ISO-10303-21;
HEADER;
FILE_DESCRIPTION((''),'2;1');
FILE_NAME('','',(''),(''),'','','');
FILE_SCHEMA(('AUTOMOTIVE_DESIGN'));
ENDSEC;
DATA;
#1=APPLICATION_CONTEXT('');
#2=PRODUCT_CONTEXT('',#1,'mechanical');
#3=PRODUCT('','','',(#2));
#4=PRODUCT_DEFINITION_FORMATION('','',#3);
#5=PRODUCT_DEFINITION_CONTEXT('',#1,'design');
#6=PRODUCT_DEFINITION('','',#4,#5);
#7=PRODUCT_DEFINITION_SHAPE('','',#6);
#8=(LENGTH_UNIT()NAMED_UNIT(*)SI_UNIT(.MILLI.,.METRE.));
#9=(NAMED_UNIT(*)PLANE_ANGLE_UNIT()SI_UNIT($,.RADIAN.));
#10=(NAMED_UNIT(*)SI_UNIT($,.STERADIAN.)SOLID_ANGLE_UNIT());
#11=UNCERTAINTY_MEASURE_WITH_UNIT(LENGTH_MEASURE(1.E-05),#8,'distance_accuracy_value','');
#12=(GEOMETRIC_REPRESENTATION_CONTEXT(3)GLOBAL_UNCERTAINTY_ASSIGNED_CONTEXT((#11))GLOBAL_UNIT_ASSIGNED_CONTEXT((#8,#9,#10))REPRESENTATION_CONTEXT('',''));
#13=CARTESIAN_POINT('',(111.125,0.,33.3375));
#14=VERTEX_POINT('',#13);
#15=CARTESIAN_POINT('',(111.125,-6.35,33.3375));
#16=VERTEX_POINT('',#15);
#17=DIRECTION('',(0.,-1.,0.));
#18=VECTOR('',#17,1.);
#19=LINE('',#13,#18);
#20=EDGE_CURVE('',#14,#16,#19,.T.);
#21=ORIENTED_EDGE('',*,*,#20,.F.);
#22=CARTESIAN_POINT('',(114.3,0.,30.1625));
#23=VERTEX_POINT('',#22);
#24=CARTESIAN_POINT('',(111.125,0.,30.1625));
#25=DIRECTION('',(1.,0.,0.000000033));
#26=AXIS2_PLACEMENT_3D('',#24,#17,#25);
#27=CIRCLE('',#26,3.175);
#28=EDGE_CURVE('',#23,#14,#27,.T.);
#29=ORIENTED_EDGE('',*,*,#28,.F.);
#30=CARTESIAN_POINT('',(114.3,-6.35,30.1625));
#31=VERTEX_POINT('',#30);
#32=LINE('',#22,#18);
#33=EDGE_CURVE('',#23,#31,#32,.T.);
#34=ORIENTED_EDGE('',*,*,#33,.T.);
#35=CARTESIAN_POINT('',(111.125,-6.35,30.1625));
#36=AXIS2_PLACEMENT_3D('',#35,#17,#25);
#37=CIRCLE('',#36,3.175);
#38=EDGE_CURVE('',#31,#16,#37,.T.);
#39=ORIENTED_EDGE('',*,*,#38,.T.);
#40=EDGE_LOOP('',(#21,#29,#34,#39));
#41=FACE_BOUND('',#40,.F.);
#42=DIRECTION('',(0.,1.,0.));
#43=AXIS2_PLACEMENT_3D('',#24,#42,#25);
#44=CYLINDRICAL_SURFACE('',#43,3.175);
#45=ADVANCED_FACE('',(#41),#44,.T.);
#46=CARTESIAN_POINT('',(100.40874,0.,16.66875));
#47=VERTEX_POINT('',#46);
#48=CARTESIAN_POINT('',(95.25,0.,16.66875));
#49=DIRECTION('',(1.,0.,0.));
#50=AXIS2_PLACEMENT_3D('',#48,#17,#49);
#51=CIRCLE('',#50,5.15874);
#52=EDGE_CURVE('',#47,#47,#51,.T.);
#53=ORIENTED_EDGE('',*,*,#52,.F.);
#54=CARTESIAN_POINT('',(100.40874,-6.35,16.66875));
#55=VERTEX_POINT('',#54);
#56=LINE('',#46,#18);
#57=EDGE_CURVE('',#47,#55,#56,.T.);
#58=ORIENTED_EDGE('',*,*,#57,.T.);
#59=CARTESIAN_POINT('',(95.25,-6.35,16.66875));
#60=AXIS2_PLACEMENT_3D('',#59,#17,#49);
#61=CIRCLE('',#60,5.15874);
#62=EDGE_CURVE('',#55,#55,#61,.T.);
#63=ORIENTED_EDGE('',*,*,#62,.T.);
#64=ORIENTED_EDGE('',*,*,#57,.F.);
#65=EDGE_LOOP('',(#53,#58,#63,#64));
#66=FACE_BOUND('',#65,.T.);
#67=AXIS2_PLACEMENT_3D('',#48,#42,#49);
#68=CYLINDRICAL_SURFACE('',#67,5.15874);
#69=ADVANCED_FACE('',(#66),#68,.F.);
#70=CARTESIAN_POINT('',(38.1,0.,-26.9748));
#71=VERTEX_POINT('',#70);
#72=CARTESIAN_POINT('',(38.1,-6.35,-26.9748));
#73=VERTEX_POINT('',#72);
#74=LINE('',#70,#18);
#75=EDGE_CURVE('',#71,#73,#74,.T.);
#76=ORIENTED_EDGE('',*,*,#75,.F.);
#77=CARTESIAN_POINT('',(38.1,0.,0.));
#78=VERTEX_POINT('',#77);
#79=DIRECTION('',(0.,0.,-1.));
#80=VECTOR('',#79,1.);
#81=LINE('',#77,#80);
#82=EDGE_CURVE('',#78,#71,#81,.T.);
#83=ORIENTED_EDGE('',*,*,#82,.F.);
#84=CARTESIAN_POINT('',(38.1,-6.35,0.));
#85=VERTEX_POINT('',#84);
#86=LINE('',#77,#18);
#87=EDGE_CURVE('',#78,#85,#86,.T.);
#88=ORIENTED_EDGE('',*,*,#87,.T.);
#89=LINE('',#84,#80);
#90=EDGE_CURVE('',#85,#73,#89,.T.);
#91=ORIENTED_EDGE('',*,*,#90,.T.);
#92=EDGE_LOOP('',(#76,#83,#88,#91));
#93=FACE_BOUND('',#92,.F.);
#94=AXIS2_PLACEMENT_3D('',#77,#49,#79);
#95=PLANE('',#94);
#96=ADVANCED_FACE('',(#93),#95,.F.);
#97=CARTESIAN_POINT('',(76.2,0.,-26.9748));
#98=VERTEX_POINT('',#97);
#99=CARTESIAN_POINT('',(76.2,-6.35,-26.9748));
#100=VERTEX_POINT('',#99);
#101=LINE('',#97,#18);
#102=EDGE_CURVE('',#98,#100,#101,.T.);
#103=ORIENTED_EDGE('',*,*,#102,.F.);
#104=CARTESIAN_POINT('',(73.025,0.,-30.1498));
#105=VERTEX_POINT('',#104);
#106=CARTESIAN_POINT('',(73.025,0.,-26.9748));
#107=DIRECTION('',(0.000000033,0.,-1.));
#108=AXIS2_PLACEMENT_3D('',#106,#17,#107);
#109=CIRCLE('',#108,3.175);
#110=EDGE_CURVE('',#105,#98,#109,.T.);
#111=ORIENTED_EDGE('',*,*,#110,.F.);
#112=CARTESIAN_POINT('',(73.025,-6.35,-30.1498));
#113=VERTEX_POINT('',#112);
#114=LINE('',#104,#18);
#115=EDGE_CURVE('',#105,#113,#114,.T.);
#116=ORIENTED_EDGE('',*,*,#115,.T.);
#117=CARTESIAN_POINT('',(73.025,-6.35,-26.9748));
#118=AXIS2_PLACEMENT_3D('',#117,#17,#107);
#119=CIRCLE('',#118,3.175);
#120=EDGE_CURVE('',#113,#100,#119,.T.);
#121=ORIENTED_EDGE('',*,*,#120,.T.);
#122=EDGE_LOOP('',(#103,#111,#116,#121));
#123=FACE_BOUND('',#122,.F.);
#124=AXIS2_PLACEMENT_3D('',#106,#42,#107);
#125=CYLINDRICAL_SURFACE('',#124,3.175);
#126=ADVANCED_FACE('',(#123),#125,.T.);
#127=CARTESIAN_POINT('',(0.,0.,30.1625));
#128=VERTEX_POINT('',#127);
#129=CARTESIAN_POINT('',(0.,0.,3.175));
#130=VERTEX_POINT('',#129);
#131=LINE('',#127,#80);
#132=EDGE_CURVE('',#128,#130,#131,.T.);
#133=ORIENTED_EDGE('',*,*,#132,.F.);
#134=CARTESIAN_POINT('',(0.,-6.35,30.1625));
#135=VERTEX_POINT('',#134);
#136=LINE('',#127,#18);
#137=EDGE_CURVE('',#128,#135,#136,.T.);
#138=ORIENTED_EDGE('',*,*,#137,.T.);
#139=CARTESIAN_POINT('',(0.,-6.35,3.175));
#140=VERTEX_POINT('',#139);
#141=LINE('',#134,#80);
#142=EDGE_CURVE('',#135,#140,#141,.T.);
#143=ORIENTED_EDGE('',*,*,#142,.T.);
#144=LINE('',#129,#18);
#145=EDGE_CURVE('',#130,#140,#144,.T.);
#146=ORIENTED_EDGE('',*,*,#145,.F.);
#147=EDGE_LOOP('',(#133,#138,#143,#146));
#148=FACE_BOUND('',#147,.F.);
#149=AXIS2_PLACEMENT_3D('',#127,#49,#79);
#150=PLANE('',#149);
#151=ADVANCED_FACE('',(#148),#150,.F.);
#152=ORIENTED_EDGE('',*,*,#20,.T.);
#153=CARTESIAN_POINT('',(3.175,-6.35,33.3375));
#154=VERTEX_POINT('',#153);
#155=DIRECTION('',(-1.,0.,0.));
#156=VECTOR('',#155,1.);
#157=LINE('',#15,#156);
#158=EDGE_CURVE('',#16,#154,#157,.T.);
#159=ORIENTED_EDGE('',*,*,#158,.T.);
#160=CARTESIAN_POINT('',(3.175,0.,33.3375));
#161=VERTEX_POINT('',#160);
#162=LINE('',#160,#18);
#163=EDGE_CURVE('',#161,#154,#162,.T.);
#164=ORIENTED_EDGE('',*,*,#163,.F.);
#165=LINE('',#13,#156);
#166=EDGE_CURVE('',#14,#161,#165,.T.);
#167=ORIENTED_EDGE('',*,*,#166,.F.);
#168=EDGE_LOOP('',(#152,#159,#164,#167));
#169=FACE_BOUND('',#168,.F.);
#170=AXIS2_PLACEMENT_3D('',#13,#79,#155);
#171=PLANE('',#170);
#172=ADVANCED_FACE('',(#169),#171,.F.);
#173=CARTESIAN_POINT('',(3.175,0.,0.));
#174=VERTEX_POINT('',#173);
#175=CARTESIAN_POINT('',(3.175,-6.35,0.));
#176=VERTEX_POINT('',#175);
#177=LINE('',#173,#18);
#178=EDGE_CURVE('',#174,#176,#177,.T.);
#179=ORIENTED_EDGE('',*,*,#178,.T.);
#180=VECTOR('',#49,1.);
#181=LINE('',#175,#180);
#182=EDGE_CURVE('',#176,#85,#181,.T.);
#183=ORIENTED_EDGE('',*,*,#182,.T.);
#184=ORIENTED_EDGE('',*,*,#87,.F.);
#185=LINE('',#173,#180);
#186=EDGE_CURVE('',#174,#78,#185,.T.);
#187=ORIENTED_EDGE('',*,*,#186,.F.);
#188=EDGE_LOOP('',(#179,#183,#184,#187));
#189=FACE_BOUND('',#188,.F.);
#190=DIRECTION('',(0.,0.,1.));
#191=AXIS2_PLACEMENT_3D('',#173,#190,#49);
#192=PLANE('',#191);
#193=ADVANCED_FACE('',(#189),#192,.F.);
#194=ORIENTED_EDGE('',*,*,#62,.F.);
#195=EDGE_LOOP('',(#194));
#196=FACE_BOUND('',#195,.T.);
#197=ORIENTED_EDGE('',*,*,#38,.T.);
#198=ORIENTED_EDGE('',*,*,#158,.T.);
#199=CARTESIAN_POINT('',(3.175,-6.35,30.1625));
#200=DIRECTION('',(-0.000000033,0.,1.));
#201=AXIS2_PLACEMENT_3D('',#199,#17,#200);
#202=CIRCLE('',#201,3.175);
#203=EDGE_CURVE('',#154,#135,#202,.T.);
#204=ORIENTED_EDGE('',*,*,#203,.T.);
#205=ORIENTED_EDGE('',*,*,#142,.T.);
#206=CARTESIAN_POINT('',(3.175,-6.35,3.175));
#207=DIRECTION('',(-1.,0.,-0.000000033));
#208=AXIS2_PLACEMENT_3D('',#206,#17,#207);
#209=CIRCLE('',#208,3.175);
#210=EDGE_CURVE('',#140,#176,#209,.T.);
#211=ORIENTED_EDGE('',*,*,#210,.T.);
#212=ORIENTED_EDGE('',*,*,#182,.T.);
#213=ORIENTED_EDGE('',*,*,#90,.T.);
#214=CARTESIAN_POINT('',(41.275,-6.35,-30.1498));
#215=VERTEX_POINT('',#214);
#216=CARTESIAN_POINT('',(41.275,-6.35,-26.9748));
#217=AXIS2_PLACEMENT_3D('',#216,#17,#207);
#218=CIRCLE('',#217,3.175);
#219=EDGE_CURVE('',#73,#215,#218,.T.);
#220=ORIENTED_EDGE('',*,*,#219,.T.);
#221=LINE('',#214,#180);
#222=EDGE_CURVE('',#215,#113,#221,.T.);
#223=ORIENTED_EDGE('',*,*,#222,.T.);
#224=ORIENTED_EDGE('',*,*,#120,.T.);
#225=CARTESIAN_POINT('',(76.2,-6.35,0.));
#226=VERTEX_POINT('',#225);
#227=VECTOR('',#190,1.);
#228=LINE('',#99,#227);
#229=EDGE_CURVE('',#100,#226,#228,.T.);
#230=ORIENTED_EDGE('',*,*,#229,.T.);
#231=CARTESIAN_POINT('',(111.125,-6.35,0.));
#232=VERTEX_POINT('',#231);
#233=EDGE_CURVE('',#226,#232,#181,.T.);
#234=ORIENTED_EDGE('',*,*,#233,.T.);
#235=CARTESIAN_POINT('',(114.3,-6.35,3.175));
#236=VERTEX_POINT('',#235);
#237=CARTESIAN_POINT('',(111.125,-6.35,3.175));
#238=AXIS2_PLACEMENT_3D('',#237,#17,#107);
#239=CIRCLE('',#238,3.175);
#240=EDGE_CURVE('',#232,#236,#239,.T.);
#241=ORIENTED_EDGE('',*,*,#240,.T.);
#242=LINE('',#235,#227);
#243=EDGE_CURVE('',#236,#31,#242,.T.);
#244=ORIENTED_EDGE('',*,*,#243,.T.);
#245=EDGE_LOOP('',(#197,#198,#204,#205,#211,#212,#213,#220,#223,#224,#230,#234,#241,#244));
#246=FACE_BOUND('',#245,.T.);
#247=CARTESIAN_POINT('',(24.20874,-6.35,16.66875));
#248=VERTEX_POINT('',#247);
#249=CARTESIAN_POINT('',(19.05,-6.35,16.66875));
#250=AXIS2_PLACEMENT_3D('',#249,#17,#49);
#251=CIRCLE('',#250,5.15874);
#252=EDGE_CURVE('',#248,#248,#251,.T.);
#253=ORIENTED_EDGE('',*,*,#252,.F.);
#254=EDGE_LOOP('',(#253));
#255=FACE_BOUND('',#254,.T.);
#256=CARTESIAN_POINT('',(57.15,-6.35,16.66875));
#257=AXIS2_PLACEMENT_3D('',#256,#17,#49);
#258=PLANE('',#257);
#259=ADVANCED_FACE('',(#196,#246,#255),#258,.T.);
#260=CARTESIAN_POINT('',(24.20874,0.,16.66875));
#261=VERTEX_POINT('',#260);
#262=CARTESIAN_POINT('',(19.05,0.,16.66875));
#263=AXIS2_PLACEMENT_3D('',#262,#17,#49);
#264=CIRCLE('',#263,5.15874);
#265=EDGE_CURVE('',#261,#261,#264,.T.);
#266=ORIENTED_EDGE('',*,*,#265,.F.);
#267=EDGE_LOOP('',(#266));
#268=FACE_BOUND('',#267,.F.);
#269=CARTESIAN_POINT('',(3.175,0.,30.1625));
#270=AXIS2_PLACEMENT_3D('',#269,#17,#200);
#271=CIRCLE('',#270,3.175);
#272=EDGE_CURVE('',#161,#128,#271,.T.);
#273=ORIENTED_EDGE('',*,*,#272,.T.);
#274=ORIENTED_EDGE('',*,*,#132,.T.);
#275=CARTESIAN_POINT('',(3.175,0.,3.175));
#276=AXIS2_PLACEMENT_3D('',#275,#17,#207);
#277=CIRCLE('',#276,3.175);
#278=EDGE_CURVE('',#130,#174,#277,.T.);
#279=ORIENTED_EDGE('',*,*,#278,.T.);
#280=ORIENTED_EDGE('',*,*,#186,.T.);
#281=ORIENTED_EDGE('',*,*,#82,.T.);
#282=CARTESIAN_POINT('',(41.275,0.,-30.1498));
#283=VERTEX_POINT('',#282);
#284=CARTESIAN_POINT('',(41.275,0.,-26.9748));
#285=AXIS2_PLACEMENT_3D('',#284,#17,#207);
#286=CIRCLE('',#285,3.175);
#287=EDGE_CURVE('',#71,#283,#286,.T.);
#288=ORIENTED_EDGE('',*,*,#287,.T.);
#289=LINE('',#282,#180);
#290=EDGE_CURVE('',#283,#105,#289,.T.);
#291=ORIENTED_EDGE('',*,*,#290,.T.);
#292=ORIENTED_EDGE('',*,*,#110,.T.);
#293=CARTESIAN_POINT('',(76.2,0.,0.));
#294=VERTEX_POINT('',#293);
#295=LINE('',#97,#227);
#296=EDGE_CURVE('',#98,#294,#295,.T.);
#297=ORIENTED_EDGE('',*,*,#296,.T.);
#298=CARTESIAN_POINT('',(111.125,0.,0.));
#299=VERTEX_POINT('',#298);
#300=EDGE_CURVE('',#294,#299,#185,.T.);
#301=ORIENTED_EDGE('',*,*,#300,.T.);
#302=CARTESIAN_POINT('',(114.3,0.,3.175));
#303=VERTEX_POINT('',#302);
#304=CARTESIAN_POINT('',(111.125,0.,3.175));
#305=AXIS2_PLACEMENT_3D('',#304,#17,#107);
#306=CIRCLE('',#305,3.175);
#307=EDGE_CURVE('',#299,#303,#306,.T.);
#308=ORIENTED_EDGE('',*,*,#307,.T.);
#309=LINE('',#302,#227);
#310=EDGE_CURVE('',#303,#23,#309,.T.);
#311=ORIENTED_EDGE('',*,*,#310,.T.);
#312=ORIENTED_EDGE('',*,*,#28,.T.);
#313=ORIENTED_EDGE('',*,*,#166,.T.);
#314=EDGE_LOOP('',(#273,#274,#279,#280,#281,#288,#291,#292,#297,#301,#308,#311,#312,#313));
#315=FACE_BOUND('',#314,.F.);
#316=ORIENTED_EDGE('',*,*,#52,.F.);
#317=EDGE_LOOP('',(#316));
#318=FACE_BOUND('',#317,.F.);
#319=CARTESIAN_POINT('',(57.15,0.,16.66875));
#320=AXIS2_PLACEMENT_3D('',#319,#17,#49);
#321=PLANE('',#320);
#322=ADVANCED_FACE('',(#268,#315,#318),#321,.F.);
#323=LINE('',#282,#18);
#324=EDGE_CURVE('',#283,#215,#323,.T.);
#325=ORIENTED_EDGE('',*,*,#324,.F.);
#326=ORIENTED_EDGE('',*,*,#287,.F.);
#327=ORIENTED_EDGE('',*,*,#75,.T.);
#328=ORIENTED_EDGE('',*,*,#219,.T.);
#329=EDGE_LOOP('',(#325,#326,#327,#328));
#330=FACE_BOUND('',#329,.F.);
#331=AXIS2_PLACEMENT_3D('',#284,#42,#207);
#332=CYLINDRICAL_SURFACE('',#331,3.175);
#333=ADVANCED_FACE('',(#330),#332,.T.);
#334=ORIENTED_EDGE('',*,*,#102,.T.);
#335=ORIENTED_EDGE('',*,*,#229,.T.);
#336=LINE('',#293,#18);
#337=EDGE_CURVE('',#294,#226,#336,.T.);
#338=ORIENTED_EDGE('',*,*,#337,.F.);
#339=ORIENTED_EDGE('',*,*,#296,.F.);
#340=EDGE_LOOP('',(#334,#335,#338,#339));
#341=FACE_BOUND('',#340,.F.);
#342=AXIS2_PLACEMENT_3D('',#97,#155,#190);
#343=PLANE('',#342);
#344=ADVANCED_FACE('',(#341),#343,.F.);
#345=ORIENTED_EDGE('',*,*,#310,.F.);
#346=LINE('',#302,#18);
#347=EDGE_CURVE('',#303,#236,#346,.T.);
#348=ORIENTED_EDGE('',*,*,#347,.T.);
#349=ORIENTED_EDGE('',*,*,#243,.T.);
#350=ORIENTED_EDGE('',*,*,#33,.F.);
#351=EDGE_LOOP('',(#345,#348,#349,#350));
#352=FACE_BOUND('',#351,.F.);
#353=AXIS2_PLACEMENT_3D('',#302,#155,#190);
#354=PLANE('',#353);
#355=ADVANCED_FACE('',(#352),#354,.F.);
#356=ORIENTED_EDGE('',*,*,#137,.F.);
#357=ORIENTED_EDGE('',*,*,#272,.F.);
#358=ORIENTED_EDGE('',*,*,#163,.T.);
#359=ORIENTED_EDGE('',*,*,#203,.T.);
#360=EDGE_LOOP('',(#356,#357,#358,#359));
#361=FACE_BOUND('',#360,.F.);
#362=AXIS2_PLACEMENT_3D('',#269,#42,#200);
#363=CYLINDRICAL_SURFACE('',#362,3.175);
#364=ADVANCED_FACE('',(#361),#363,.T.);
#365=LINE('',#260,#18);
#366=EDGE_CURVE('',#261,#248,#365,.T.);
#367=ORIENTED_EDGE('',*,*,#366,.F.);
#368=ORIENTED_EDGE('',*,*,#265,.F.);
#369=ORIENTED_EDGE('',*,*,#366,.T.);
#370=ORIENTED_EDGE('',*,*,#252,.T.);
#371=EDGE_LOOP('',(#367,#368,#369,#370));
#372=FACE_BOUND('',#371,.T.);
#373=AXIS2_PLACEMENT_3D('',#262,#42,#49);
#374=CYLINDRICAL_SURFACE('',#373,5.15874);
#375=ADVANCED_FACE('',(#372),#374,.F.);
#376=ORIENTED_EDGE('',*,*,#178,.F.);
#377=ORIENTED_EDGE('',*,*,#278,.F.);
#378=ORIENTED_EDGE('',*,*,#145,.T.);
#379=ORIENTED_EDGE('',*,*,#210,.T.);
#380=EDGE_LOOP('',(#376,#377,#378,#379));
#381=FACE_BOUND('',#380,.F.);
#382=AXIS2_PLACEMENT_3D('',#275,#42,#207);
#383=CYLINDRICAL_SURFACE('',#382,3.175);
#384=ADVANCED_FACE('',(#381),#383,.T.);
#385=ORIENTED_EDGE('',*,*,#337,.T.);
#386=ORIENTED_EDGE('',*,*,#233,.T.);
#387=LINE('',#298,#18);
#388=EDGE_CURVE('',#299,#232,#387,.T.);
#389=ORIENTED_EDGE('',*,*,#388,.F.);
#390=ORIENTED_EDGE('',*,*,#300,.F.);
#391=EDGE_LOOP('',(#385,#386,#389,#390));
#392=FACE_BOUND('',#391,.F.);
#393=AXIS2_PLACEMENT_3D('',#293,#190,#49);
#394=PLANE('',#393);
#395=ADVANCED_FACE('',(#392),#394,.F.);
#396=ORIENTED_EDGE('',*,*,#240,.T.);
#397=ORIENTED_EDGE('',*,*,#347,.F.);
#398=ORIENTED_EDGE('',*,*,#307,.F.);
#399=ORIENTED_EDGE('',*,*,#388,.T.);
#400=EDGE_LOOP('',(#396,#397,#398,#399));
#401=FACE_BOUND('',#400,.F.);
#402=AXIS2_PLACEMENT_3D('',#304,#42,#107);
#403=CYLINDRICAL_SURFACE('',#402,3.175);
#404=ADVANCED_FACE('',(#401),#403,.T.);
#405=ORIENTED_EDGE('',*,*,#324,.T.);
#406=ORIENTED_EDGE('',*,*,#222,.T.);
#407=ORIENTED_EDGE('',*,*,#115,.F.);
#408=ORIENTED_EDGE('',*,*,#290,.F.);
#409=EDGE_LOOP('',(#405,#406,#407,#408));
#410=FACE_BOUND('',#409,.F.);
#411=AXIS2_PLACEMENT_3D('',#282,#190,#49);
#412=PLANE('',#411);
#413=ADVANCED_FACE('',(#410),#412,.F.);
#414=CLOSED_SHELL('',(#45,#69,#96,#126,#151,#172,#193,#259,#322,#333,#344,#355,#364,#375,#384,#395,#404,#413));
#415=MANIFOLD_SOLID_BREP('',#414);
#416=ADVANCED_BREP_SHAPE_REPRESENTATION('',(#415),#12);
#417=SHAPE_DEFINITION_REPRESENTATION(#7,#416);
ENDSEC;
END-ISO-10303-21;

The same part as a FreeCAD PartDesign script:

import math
import FreeCAD as App
import Part
import Sketcher
from FreeCAD import Vector
Q = App.Units.Quantity

doc = App.newDocument("Part")
params = doc.addObject("Spreadsheet::Sheet", "Params")
for row, (alias, value) in enumerate([
    ("sketch1_radius", "0.125 in"),
    ("sketch1_width", "1.25 in"),
    ("sketch1_height", "1.062 in"),
    ("sketch1_height2", "1.0625 in"),
    ("pad1_length", "0.25 in"),
], start=1):
    params.set(f"A{row}", alias)
    params.set(f"B{row}", "=" + value)
    params.setAlias(f"B{row}", alias)

body = doc.addObject("PartDesign::Body", "Body")

# Sketch on XZ plane
sketch1 = body.newObject("Sketcher::SketchObject", "Sketch")
sketch1.AttachmentSupport = (doc.getObject("XZ_Plane"), [""])
sketch1.MapMode = "FlatFace"
sketch1.addGeometry([
    Part.ArcOfCircle(Part.Circle(Vector(3.2, 3.2, 0), Vector(0, 0, 1), 3.2), math.radians(-180), math.radians(-90)),  # 0
    Part.LineSegment(Vector(3.2, 0, 0), Vector(38.1, 0, 0)),  # 1
    Part.LineSegment(Vector(38.1, 0, 0), Vector(38.1, -27, 0)),  # 2
    Part.ArcOfCircle(Part.Circle(Vector(41.3, -27, 0), Vector(0, 0, 1), 3.2), math.radians(-180), math.radians(-90)),  # 3
    Part.LineSegment(Vector(41.3, -30.1, 0), Vector(73, -30.1, 0)),  # 4
    Part.ArcOfCircle(Part.Circle(Vector(73, -27, 0), Vector(0, 0, 1), 3.2), math.radians(-90), math.radians(0)),  # 5
    Part.LineSegment(Vector(76.2, -27, 0), Vector(76.2, 0, 0)),  # 6
    Part.LineSegment(Vector(76.2, 0, 0), Vector(111.1, 0, 0)),  # 7
    Part.ArcOfCircle(Part.Circle(Vector(111.1, 3.2, 0), Vector(0, 0, 1), 3.2), math.radians(-90), math.radians(0)),  # 8
    Part.LineSegment(Vector(114.3, 3.2, 0), Vector(114.3, 30.2, 0)),  # 9
    Part.ArcOfCircle(Part.Circle(Vector(111.1, 30.2, 0), Vector(0, 0, 1), 3.2), math.radians(0), math.radians(90)),  # 10
    Part.LineSegment(Vector(111.1, 33.3, 0), Vector(3.2, 33.3, 0)),  # 11
    Part.ArcOfCircle(Part.Circle(Vector(3.2, 30.2, 0), Vector(0, 0, 1), 3.2), math.radians(90), math.radians(180)),  # 12
    Part.LineSegment(Vector(0, 30.2, 0), Vector(0, 3.2, 0)),  # 13
    Part.Circle(Vector(19.1, 16.7, 0), Vector(0, 0, 1), 5.2),  # 14
    Part.Circle(Vector(95.2, 16.7, 0), Vector(0, 0, 1), 5.2),  # 15
], False)
sketch1.addConstraint([
    Sketcher.Constraint("Tangent", 0, 2, 1, 1),
    Sketcher.Constraint("Coincident", 1, 2, 2, 1),
    Sketcher.Constraint("Tangent", 2, 2, 3, 1),
    Sketcher.Constraint("Tangent", 3, 2, 4, 1),
    Sketcher.Constraint("Tangent", 4, 2, 5, 1),
    Sketcher.Constraint("Tangent", 5, 2, 6, 1),
    Sketcher.Constraint("Coincident", 6, 2, 7, 1),
    Sketcher.Constraint("Tangent", 7, 2, 8, 1),
    Sketcher.Constraint("Tangent", 8, 2, 9, 1),
    Sketcher.Constraint("Tangent", 9, 2, 10, 1),
    Sketcher.Constraint("Tangent", 10, 2, 11, 1),
    Sketcher.Constraint("Tangent", 11, 2, 12, 1),
    Sketcher.Constraint("Tangent", 12, 2, 13, 1),
    Sketcher.Constraint("Tangent", 13, 2, 0, 1),
    Sketcher.Constraint("Horizontal", 1),
    Sketcher.Constraint("Vertical", 2),
    Sketcher.Constraint("Horizontal", 4),
    Sketcher.Constraint("Vertical", 6),
    Sketcher.Constraint("Horizontal", 7),
    Sketcher.Constraint("Vertical", 9),
    Sketcher.Constraint("Horizontal", 11),
    Sketcher.Constraint("Vertical", 13),
    Sketcher.Constraint("Equal", 0, 3),
    Sketcher.Constraint("Equal", 3, 5),
    Sketcher.Constraint("Equal", 5, 8),
    Sketcher.Constraint("Equal", 8, 10),
    Sketcher.Constraint("Equal", 10, 12),
    Sketcher.Constraint("Equal", 14, 15),
    Sketcher.Constraint("PointOnObject", 0, 2, -1),
    Sketcher.Constraint("PointOnObject", 6, 2, -1),
    Sketcher.Constraint("PointOnObject", 12, 2, -2),
    Sketcher.Constraint("Horizontal", 14, 3, 15, 3),
    Sketcher.Constraint("Equal", 1, 7),
    Sketcher.Constraint("DistanceX", -1, 1, 5, 2, Q("3 in")),
    Sketcher.Constraint("Radius", 0, Q("0.125 in")),
    Sketcher.Constraint("DistanceX", 14, 3, 15, 3, Q("3 in")),
    Sketcher.Constraint("Diameter", 14, Q("0.4062 in")),
    Sketcher.Constraint("DistanceX", 4, 1, 4, 2, Q("1.25 in")),
    Sketcher.Constraint("DistanceY", 2, 2, 2, 1, Q("1.062 in")),
    Sketcher.Constraint("DistanceY", 9, 1, 9, 2, Q("1.0625 in")),
    Sketcher.Constraint("DistanceX", -1, 1, 14, 3, Q("0.75 in")),
    Sketcher.Constraint("DistanceY", -1, 1, 14, 3, Q("0.65625 in")),
])
sketch1.setExpression("Constraints[34]", "Params.sketch1_radius")
sketch1.setExpression("Constraints[37]", "Params.sketch1_width")
sketch1.setExpression("Constraints[38]", "Params.sketch1_height")
sketch1.setExpression("Constraints[39]", "Params.sketch1_height2")
pad1 = body.newObject("PartDesign::Pad", "Pad")
pad1.Profile = sketch1
pad1.setExpression("Length", "Params.pad1_length")

doc.recompute()
